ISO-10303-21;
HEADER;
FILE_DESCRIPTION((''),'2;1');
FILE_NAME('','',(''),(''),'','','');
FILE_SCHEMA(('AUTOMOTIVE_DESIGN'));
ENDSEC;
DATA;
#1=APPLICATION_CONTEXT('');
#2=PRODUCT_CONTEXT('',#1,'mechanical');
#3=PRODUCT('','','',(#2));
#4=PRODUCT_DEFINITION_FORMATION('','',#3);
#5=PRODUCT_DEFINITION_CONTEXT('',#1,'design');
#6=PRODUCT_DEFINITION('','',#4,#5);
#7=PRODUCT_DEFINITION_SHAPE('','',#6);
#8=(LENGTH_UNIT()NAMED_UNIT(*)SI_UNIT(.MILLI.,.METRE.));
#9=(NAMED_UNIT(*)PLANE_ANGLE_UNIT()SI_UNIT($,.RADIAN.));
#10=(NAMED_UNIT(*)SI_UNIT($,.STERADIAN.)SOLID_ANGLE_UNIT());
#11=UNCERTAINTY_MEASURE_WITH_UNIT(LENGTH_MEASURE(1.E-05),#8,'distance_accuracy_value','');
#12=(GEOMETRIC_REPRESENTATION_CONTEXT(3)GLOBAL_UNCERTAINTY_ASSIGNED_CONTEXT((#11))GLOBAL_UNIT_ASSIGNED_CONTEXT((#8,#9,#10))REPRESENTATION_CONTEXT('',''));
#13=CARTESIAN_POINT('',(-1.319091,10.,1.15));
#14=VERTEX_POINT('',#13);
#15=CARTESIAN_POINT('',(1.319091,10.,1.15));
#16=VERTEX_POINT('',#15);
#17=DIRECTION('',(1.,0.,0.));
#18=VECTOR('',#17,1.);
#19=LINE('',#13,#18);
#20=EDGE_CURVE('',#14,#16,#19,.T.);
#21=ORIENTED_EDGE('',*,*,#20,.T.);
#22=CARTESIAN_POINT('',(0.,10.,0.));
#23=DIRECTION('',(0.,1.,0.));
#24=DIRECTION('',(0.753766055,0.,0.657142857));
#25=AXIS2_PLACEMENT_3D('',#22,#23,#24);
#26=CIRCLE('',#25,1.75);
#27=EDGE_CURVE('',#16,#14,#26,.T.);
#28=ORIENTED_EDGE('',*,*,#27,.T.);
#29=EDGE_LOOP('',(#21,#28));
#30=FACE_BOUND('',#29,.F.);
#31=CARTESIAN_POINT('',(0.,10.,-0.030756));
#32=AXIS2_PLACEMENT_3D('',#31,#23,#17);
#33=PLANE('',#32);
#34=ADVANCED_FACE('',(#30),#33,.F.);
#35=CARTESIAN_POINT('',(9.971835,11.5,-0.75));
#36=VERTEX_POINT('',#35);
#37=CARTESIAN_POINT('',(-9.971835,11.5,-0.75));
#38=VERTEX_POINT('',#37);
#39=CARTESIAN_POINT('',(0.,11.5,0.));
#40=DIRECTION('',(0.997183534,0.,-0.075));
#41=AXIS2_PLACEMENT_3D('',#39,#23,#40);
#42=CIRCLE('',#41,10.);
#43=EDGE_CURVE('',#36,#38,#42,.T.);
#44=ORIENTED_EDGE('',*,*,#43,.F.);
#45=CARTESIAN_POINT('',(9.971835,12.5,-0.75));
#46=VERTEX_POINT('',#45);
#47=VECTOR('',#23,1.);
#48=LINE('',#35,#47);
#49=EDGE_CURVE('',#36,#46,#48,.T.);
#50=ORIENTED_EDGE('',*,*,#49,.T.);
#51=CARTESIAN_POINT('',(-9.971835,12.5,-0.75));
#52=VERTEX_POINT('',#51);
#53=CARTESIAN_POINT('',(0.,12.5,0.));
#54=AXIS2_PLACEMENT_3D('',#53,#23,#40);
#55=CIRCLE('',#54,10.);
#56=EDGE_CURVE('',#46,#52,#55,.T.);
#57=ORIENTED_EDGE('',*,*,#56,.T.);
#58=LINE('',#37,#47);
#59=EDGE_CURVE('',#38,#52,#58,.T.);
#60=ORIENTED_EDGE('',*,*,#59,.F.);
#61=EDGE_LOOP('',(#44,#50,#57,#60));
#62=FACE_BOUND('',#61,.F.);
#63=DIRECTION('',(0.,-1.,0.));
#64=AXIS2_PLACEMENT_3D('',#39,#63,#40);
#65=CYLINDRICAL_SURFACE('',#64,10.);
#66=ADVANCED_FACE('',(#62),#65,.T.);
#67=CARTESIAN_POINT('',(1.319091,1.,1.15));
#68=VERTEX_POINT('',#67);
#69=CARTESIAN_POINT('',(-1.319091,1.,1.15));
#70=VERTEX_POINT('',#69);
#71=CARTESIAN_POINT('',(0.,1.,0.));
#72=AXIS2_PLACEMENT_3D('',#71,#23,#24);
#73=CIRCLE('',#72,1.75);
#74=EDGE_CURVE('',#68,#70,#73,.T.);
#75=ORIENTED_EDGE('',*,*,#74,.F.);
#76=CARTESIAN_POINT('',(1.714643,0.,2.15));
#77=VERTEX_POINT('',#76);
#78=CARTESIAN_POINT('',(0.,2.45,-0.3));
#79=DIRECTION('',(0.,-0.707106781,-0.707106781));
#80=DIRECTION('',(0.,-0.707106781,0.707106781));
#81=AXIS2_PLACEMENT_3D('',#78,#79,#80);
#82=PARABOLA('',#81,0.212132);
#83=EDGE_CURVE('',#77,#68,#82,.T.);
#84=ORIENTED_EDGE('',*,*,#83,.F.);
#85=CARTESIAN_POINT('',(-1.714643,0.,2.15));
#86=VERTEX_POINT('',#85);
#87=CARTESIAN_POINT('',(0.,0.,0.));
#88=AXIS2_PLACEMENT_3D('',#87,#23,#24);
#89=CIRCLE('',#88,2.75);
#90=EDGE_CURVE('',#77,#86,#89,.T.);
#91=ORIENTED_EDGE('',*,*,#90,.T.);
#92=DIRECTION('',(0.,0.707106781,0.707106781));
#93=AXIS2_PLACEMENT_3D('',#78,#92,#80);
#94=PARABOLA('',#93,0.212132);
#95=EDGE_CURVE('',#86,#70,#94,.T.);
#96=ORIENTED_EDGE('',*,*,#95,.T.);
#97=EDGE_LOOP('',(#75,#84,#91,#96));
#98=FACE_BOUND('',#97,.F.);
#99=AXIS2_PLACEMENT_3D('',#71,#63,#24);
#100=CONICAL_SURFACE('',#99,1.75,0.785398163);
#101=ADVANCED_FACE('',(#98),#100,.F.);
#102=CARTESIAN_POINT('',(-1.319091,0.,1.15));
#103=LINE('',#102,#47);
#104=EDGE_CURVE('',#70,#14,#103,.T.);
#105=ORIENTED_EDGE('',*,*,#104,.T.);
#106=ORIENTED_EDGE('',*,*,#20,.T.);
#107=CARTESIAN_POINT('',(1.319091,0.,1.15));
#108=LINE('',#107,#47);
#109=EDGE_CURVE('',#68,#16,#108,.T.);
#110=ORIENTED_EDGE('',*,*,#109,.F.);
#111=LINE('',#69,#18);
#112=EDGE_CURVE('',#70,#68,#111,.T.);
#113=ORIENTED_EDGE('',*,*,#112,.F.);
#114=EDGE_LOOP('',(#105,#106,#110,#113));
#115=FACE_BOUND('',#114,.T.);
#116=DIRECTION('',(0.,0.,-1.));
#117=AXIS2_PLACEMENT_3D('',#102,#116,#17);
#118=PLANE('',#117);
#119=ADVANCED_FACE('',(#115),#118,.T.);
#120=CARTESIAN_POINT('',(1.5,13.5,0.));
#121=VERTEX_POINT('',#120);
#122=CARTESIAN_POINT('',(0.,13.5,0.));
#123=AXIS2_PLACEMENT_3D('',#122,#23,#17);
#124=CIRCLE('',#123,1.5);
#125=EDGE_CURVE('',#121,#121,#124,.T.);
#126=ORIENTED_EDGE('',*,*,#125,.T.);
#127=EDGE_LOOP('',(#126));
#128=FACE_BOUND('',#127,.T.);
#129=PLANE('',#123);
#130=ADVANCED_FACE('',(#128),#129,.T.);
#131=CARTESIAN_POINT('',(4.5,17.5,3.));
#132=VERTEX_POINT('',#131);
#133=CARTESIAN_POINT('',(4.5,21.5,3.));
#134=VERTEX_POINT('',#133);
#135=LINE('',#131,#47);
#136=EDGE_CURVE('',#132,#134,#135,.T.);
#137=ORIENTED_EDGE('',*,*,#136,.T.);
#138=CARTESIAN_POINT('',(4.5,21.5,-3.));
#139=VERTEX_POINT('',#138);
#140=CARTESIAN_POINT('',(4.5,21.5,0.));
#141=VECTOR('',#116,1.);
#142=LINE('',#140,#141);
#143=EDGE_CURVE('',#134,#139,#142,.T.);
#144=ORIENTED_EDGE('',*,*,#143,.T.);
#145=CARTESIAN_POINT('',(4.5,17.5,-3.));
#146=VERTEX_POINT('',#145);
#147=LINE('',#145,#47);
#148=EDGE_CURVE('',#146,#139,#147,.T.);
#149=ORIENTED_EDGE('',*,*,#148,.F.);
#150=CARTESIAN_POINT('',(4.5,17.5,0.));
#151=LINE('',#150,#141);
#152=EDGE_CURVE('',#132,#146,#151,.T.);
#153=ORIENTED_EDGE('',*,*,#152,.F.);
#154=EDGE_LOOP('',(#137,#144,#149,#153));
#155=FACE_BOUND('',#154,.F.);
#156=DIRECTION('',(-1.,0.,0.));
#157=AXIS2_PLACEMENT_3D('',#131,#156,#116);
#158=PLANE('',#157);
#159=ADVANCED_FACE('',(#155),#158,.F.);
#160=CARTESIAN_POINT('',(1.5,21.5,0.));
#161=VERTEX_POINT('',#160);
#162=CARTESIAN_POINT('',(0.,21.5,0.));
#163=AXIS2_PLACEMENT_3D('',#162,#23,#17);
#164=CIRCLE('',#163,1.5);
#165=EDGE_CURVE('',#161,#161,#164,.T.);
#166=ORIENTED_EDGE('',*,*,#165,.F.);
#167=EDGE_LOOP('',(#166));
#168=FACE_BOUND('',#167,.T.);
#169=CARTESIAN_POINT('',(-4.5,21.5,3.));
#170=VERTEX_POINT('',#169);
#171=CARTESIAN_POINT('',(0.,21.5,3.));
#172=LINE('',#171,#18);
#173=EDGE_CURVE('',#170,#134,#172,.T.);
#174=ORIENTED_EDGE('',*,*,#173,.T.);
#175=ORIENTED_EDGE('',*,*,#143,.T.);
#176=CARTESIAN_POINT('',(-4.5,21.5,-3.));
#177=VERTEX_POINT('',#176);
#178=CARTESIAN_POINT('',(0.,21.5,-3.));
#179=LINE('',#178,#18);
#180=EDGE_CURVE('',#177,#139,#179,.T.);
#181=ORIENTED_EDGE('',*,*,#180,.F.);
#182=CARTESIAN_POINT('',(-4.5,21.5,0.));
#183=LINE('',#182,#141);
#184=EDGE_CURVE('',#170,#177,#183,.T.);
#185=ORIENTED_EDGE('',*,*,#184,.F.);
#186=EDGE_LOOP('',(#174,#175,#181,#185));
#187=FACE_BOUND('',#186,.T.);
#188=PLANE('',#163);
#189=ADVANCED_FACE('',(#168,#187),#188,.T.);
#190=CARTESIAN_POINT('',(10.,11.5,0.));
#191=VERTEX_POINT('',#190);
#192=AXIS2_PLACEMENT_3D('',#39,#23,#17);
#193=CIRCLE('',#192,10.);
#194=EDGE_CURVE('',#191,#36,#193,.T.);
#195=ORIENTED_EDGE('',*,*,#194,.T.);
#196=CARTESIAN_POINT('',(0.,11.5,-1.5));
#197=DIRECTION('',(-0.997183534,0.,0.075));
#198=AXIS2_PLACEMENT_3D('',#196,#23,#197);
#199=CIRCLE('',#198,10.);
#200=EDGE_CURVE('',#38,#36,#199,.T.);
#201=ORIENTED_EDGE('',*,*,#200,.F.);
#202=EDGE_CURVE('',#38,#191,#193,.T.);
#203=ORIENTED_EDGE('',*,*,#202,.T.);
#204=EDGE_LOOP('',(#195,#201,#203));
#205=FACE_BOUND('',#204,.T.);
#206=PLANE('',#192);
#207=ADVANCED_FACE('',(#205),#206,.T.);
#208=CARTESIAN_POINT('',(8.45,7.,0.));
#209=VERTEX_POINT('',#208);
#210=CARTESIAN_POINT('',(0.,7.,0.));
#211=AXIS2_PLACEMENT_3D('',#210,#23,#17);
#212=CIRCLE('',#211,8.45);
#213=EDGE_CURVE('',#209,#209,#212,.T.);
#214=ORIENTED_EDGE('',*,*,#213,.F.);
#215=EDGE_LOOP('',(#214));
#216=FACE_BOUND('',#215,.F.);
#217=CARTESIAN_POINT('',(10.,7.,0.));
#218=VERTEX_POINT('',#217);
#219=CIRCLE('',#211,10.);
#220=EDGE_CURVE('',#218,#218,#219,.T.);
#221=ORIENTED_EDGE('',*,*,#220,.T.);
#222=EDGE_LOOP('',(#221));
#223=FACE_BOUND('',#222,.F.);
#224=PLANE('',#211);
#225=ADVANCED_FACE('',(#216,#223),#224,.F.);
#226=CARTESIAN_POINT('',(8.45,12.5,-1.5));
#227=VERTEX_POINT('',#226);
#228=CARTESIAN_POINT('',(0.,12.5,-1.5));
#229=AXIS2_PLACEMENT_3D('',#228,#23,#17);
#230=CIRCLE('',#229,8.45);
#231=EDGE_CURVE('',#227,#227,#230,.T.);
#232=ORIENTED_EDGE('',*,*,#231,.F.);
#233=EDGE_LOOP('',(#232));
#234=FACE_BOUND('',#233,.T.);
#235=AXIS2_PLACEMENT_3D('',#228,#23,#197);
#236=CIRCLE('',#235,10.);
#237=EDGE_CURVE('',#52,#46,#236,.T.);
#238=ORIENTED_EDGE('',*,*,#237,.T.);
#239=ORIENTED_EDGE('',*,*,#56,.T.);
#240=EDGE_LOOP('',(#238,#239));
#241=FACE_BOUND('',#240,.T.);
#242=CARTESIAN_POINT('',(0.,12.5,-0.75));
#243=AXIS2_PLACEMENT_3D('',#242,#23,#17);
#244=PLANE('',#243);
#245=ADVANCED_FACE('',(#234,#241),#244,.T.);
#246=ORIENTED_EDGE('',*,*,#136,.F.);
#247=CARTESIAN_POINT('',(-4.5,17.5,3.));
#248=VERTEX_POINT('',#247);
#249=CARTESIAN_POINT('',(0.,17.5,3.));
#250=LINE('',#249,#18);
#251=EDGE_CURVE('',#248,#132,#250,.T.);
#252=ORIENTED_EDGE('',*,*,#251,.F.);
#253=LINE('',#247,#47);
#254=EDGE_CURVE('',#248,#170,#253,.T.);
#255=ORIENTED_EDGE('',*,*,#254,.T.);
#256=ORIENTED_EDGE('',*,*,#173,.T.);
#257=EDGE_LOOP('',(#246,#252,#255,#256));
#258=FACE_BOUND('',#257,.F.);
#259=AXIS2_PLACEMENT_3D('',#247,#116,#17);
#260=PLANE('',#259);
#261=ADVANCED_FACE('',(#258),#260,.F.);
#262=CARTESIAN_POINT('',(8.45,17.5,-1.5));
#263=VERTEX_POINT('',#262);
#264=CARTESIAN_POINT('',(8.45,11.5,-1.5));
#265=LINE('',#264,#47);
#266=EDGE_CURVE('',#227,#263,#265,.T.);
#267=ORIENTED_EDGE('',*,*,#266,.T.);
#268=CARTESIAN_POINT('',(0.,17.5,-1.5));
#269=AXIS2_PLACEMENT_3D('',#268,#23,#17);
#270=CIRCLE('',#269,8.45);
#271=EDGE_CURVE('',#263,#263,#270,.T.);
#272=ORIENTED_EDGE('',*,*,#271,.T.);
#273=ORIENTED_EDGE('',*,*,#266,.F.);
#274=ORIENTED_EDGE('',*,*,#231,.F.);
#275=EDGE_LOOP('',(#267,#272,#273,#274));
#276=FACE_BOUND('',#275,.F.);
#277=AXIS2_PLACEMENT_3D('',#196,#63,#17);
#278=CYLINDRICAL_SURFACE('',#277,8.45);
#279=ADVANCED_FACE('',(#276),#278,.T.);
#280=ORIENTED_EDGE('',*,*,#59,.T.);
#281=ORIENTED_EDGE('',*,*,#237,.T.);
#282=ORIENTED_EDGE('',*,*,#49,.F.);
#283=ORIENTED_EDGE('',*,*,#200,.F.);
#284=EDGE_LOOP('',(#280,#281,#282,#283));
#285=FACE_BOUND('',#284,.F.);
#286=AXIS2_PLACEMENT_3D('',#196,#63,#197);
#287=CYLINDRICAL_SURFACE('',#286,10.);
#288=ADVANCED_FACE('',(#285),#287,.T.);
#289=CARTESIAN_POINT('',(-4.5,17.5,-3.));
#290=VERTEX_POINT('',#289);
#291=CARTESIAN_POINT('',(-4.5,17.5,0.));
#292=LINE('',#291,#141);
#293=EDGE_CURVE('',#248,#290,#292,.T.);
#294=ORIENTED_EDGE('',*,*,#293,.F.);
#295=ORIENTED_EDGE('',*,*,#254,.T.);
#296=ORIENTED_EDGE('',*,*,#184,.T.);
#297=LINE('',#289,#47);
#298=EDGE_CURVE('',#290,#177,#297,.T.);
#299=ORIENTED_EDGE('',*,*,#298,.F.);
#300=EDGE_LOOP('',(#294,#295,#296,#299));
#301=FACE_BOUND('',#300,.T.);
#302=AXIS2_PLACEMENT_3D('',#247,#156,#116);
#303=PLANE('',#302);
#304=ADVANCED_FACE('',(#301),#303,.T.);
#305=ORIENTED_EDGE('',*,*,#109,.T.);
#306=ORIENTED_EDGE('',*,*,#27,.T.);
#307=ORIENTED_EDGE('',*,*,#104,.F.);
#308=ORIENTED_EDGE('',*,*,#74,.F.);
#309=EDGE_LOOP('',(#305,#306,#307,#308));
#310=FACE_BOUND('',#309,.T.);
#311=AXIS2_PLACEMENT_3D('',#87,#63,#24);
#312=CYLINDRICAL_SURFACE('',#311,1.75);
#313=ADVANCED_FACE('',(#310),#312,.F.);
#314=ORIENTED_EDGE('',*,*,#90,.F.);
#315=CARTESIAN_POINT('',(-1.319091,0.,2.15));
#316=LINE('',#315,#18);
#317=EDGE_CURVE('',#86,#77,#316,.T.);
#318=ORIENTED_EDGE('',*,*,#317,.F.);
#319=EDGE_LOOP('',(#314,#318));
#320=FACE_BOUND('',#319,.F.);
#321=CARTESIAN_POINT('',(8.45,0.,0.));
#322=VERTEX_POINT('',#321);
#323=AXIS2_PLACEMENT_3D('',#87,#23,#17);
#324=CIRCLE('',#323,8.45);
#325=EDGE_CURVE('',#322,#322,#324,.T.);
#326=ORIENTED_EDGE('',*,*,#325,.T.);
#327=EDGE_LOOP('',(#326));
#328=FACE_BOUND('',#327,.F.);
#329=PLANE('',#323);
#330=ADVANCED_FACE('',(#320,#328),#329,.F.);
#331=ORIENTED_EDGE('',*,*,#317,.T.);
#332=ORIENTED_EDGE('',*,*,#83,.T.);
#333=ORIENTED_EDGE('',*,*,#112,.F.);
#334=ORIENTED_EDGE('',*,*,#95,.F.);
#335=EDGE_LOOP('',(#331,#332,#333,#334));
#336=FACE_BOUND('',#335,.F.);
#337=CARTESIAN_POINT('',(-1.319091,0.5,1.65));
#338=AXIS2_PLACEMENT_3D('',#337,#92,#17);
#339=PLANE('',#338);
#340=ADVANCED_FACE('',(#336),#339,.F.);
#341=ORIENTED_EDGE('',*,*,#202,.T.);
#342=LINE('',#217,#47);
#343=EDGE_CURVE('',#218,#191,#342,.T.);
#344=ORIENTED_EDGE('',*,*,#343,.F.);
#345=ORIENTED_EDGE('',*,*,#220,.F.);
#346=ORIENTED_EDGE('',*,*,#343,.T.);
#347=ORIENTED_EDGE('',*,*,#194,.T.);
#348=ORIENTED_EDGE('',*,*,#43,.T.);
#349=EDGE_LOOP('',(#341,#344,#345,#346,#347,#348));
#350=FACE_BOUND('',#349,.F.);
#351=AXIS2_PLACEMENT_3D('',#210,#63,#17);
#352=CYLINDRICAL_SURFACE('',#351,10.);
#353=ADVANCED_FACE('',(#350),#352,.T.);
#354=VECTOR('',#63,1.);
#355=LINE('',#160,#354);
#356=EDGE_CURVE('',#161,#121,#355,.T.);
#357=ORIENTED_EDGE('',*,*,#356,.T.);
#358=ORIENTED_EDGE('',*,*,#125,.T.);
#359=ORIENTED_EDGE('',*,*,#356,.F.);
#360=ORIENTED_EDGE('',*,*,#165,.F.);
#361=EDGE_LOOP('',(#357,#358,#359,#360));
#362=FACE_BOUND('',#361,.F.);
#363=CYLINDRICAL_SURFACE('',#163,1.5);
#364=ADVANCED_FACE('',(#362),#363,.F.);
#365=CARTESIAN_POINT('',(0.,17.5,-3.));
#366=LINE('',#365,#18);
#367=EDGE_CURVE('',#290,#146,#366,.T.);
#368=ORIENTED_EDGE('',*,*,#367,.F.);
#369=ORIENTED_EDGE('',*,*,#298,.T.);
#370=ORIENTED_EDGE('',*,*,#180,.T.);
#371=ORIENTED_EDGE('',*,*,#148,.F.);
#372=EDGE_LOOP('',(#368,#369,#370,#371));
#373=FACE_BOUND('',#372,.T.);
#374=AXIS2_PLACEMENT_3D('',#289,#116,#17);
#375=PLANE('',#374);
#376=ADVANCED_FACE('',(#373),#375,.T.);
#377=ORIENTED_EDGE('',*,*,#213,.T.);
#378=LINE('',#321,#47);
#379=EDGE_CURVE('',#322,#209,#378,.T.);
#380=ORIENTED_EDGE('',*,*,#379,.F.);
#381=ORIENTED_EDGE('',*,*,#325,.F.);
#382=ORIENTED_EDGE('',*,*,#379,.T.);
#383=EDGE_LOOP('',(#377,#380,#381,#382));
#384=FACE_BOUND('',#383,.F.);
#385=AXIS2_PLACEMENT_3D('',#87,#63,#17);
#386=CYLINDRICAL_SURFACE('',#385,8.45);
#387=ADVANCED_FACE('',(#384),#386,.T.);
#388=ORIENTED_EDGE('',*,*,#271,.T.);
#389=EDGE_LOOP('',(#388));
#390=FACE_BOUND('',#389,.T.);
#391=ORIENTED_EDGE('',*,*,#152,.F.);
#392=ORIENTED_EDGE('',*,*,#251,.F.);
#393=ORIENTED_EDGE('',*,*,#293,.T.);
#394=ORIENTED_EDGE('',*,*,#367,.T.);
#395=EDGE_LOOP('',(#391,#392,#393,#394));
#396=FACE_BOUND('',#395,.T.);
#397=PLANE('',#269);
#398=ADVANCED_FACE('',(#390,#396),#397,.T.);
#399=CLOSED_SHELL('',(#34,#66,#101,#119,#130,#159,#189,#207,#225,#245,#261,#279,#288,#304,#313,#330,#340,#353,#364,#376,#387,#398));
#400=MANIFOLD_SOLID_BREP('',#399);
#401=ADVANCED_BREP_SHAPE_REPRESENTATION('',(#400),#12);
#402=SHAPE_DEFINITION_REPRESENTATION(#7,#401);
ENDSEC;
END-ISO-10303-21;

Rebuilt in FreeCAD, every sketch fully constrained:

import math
import FreeCAD as App
import Part
import Sketcher

V = App.Vector


def edges_at(feature, points):
    """Names of the edges that pass closest to the given points."""
    edges = feature.Shape.Edges
    near = lambda p: min(range(len(edges)), key=lambda i: edges[i].distToShape(Part.Vertex(*p))[0])
    return sorted({f"Edge{near(p) + 1}" for p in points})


def add_polygon(sketch, points):
    """Adds a closed chain of lines whose ends are joined by coincident constraints."""
    first, n = sketch.GeometryCount, len(points)
    for a, b in zip(points, points[1:] + points[:1]):
        sketch.addGeometry(Part.LineSegment(App.Vector(*a, 0), App.Vector(*b, 0)), False)
    for i in range(n):
        sketch.addConstraint(Sketcher.Constraint("Coincident", first + i, 2, first + (i + 1) % n, 1))

doc = App.newDocument("Part")
params = doc.addObject("Spreadsheet::Sheet", "Params")
for row, (alias, value) in enumerate([
    ("sketch1_diameter", "16.9 mm"),
    ("pad1_length", "7 mm"),
    ("sketch2_diameter", "20 mm"),
    ("pad2_length", "4.5 mm"),
    ("sketch3_diameter", "16.9 mm"),
    ("pad3_length", "6 mm"),
    ("sketch4_radius", "10 mm"),
    ("sketch4_diameter", "16.9 mm"),
    ("pad4_length", "1 mm"),
    ("sketch5_width", "9 mm"),
    ("sketch5_height", "6 mm"),
    ("pad5_length", "4 mm"),
    ("sketch6_diameter", "3 mm"),
    ("pocket1_length", "8 mm"),
    ("sketch7_radius", "1.75 mm"),
    ("pocket2_length", "10 mm"),
    ("chamfer_size", "1 mm"),
], start=1):
    params.set(f"A{row}", alias)
    params.set(f"B{row}", "=" + value)
    params.setAlias(f"B{row}", alias)

body = doc.addObject("PartDesign::Body", "Body")

sketch1 = body.newObject("Sketcher::SketchObject", "Sketch")
sketch1.AttachmentSupport = (doc.getObject("XZ_Plane"), [""])
sketch1.MapMode = "FlatFace"
sketch1.addGeometry(Part.Circle(V(0, 0, 0), V(0, 0, 1), 8.45), False)
sketch1.addConstraint([
    Sketcher.Constraint("Coincident", 0, 3, -1, 1),
    Sketcher.Constraint("Diameter", 0, 16.9),
])
sketch1.setExpression("Constraints[1]", "Params.sketch1_diameter")
pad1 = body.newObject("PartDesign::Pad", "Pad")
pad1.Profile = sketch1
pad1.setExpression("Length", "Params.pad1_length")
pad1.Reversed = True

sketch2 = body.newObject("Sketcher::SketchObject", "Sketch001")
sketch2.AttachmentSupport = (doc.getObject("XZ_Plane"), [""])
sketch2.MapMode = "FlatFace"
sketch2.AttachmentOffset = App.Placement(V(0, 0, -7), App.Rotation())
sketch2.addGeometry(Part.Circle(V(0, 0, 0), V(0, 0, 1), 10), False)
sketch2.addConstraint([
    Sketcher.Constraint("Coincident", 0, 3, -1, 1),
    Sketcher.Constraint("Diameter", 0, 20.0),
])
sketch2.setExpression("Constraints[1]", "Params.sketch2_diameter")
pad2 = body.newObject("PartDesign::Pad", "Pad001")
pad2.Profile = sketch2
pad2.setExpression("Length", "Params.pad2_length")
pad2.Reversed = True

sketch3 = body.newObject("Sketcher::SketchObject", "Sketch002")
sketch3.AttachmentSupport = (doc.getObject("XZ_Plane"), [""])
sketch3.MapMode = "FlatFace"
sketch3.AttachmentOffset = App.Placement(V(0, 0, -11.5), App.Rotation())
sketch3.addGeometry(Part.Circle(V(0, -1.5, 0), V(0, 0, 1), 8.45), False)
sketch3.addConstraint([
    Sketcher.Constraint("PointOnObject", 0, 3, -2),
    Sketcher.Constraint("Diameter", 0, 16.9),
    Sketcher.Constraint("DistanceY", 0, 3, -1, 1, 1.5),
])
sketch3.setExpression("Constraints[1]", "Params.sketch3_diameter")
pad3 = body.newObject("PartDesign::Pad", "Pad002")
pad3.Profile = sketch3
pad3.setExpression("Length", "Params.pad3_length")
pad3.Reversed = True

sketch4 = body.newObject("Sketcher::SketchObject", "Sketch003")
sketch4.AttachmentSupport = (doc.getObject("XZ_Plane"), [""])
sketch4.MapMode = "FlatFace"
sketch4.AttachmentOffset = App.Placement(V(0, 0, -11.5), App.Rotation())
sketch4.addGeometry([
    Part.ArcOfCircle(Part.Circle(V(0, 0, 0), V(0, 0, 1), 10), math.radians(-175.698778), math.radians(-4.301222)),
    Part.ArcOfCircle(Part.Circle(V(0, -1.5, 0), V(0, 0, 1), 10), math.radians(4.301222), math.radians(175.698778)),
    Part.Circle(V(0, -1.5, 0), V(0, 0, 1), 8.45),
], False)
sketch4.addConstraint([
    Sketcher.Constraint("Coincident", 0, 1, 1, 2),
    Sketcher.Constraint("Coincident", 1, 1, 0, 2),
    Sketcher.Constraint("Coincident", 0, 3, -1, 1),
    Sketcher.Constraint("Coincident", 2, 3, 1, 3),
    Sketcher.Constraint("Equal", 0, 1),
    Sketcher.Constraint("PointOnObject", 1, 3, -2),
    Sketcher.Constraint("Radius", 0, 10.0),
    Sketcher.Constraint("Diameter", 2, 16.9),
    Sketcher.Constraint("DistanceY", 1, 3, -1, 1, 1.5),
])
sketch4.setExpression("Constraints[6]", "Params.sketch4_radius")
sketch4.setExpression("Constraints[7]", "Params.sketch4_diameter")
pad4 = body.newObject("PartDesign::Pad", "Pad003")
pad4.Profile = sketch4
pad4.setExpression("Length", "Params.pad4_length")
pad4.Reversed = True

sketch5 = body.newObject("Sketcher::SketchObject", "Sketch004")
sketch5.AttachmentSupport = (doc.getObject("XZ_Plane"), [""])
sketch5.MapMode = "FlatFace"
sketch5.AttachmentOffset = App.Placement(V(0, 0, -17.5), App.Rotation())
add_polygon(sketch5, [(-4.5, -3), (-4.5, 3), (4.5, 3), (4.5, -3)])
sketch5.addConstraint([
    Sketcher.Constraint("Vertical", 0),
    Sketcher.Constraint("Horizontal", 1),
    Sketcher.Constraint("Vertical", 2),
    Sketcher.Constraint("Horizontal", 3),
    Sketcher.Constraint("Symmetric", 0, 2, 2, 2, -1, 1),
    Sketcher.Constraint("DistanceX", 1, 1, 1, 2, 9.0),
    Sketcher.Constraint("DistanceY", 0, 1, 0, 2, 6.0),
])
sketch5.setExpression("Constraints[9]", "Params.sketch5_width")
sketch5.setExpression("Constraints[10]", "Params.sketch5_height")
pad5 = body.newObject("PartDesign::Pad", "Pad004")
pad5.Profile = sketch5
pad5.setExpression("Length", "Params.pad5_length")
pad5.Reversed = True

sketch6 = body.newObject("Sketcher::SketchObject", "Sketch005")
sketch6.AttachmentSupport = (doc.getObject("XZ_Plane"), [""])
sketch6.MapMode = "FlatFace"
sketch6.AttachmentOffset = App.Placement(V(0, 0, -21.5), App.Rotation())
sketch6.addGeometry(Part.Circle(V(0, 0, 0), V(0, 0, 1), 1.5), False)
sketch6.addConstraint([
    Sketcher.Constraint("Coincident", 0, 3, -1, 1),
    Sketcher.Constraint("Diameter", 0, 3.0),
])
sketch6.setExpression("Constraints[1]", "Params.sketch6_diameter")
pocket1 = body.newObject("PartDesign::Pocket", "Pocket")
pocket1.Profile = sketch6
pocket1.setExpression("Length", "Params.pocket1_length")
pocket1.Reversed = True

sketch7 = body.newObject("Sketcher::SketchObject", "Sketch006")
sketch7.AttachmentSupport = (doc.getObject("XZ_Plane"), [""])
sketch7.MapMode = "FlatFace"
sketch7.addGeometry([
    Part.LineSegment(V(1.319091, 1.15, 0), V(-1.319091, 1.15, 0)),
    Part.ArcOfCircle(Part.Circle(V(0, 0, 0), V(0, 0, 1), 1.75), math.radians(138.917667), math.radians(401.082333)),
], False)
sketch7.addConstraint([
    Sketcher.Constraint("Coincident", 0, 1, 1, 2),
    Sketcher.Constraint("Coincident", 1, 1, 0, 2),
    Sketcher.Constraint("Horizontal", 0),
    Sketcher.Constraint("Coincident", 1, 3, -1, 1),
    Sketcher.Constraint("Radius", 1, 1.75),
    Sketcher.Constraint("DistanceY", -1, 1, 0, 1, 1.15),
])
sketch7.setExpression("Constraints[4]", "Params.sketch7_radius")
pocket2 = body.newObject("PartDesign::Pocket", "Pocket001")
pocket2.Profile = sketch7
pocket2.setExpression("Length", "Params.pocket2_length")
doc.recompute()

chamfer = body.newObject("PartDesign::Chamfer", "Chamfer")
chamfer.Base = (pocket2, edges_at(pocket2, [(0, 0, -1.75), (0, 0, 1.15)]))
chamfer.setExpression("Size", "Params.chamfer_size")

doc.recompute()
